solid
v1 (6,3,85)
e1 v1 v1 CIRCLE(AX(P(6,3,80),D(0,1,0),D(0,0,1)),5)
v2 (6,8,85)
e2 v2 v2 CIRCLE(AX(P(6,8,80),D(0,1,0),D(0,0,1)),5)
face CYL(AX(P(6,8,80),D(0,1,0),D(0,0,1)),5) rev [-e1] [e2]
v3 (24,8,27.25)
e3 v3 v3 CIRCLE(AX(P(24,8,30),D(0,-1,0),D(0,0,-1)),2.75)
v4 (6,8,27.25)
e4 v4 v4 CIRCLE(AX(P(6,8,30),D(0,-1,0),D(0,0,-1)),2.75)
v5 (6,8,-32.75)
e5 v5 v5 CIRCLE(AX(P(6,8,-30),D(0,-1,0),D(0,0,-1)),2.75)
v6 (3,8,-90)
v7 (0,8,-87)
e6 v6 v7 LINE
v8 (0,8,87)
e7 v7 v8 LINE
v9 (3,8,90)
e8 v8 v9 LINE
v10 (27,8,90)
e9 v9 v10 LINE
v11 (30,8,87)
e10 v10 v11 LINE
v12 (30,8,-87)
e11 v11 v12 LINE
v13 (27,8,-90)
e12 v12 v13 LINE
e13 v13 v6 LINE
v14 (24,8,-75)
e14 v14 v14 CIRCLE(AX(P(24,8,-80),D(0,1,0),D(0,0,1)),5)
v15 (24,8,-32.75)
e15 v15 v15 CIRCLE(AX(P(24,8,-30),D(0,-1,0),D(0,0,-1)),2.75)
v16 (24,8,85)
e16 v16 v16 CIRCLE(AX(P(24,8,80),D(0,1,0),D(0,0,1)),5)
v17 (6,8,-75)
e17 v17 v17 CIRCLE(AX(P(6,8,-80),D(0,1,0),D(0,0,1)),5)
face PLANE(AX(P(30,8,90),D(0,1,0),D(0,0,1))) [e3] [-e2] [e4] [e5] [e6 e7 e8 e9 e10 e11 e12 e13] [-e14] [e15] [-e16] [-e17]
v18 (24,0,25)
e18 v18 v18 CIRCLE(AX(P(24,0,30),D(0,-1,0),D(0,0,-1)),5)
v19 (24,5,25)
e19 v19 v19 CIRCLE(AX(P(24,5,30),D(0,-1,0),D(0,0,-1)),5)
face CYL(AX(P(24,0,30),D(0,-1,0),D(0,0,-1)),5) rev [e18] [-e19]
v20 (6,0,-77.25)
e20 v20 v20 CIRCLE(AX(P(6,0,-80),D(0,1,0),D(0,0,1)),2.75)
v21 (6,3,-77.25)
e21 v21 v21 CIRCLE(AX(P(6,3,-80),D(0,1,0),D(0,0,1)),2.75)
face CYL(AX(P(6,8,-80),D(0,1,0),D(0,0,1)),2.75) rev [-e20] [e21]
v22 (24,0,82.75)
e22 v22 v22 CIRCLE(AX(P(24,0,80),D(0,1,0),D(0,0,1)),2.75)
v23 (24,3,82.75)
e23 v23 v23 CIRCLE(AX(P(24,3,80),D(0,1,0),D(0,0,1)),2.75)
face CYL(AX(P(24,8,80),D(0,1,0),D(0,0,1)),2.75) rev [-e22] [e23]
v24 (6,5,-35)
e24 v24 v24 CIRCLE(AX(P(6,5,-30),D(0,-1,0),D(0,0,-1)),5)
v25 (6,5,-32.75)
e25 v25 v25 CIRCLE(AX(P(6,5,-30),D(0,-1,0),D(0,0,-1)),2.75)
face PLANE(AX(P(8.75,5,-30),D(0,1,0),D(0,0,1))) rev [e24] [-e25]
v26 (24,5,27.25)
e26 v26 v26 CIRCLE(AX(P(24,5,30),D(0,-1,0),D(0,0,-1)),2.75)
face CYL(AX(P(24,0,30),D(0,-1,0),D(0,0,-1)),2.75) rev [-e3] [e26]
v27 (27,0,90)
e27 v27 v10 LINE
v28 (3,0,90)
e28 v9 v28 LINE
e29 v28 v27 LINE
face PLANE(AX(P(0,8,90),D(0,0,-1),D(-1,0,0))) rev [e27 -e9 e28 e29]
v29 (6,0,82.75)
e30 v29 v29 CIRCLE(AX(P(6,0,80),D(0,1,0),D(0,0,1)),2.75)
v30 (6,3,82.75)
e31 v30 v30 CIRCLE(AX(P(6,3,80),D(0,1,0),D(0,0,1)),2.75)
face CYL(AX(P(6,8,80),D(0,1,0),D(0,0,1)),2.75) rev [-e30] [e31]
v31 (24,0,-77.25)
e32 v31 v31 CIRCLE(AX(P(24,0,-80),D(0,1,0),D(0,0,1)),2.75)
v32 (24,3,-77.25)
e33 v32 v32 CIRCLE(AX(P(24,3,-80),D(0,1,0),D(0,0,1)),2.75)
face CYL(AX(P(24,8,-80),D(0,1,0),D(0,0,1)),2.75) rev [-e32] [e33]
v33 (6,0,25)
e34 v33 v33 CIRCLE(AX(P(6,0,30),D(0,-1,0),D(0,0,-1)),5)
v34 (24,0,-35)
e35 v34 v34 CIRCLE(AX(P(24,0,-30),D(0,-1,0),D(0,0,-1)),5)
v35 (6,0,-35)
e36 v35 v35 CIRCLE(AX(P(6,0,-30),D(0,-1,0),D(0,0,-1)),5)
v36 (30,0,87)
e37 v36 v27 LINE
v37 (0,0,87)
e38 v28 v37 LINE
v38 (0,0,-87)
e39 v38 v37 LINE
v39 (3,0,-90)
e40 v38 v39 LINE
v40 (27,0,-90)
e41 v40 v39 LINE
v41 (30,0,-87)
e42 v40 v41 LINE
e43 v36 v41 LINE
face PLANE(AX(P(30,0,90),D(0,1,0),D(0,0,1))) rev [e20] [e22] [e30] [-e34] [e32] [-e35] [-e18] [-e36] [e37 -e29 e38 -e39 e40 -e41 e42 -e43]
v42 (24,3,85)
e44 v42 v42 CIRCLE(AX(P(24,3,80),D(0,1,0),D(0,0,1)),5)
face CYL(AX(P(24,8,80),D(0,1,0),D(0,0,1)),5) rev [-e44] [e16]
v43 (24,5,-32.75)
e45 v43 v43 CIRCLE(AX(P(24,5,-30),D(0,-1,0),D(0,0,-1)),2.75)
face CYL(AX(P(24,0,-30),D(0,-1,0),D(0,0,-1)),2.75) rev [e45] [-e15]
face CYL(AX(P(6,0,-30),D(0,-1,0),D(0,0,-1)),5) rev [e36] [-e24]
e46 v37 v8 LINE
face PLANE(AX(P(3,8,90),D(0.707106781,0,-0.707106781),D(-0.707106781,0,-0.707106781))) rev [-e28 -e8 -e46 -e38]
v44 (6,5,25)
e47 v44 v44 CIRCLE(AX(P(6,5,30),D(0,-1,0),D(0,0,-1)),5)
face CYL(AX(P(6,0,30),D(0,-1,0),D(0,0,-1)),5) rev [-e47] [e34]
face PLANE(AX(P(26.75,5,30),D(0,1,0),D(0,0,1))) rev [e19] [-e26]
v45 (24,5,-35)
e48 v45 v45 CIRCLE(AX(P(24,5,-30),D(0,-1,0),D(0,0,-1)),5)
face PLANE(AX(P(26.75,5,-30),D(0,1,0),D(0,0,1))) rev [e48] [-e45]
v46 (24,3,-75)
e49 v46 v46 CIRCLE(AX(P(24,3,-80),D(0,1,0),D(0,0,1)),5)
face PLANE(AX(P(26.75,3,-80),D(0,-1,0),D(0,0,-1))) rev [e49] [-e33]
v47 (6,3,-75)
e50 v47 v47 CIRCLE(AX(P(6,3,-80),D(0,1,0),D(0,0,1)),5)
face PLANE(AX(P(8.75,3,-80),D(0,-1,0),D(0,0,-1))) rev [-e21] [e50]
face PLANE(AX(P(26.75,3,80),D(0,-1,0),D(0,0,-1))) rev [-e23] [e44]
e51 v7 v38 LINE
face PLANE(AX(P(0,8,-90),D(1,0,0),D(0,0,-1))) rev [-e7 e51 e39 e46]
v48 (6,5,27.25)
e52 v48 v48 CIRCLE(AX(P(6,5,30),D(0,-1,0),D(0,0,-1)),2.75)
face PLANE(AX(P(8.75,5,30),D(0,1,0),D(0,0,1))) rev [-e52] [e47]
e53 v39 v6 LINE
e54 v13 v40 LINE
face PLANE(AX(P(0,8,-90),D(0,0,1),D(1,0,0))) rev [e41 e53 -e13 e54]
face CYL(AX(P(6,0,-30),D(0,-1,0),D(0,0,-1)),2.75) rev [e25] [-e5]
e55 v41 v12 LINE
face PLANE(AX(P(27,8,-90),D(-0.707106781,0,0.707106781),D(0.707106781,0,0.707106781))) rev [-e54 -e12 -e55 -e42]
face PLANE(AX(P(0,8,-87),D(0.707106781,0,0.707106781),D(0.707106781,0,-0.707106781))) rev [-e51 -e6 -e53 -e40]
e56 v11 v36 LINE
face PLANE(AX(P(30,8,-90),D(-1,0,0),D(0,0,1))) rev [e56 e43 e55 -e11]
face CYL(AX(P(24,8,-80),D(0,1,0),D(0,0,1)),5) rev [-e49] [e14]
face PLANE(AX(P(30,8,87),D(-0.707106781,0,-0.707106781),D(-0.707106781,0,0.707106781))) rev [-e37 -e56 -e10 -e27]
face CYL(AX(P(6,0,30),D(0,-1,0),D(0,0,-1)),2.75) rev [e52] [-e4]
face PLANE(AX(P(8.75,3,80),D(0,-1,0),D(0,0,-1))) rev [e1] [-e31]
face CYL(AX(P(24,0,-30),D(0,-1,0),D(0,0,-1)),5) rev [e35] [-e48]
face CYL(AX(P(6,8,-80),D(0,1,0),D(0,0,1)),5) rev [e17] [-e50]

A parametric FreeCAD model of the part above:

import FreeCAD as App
import Part
import Sketcher
Q = App.Units.Quantity


def edges_at(feature, points):
    """Names of the edges that pass closest to the given points."""
    edges = feature.Shape.Edges
    near = lambda p: min(range(len(edges)), key=lambda i: edges[i].distToShape(Part.Vertex(*p))[0])
    return sorted({f"Edge{near(p) + 1}" for p in points})


def add_polygon(sketch, points):
    """Adds a closed chain of lines whose ends are joined by coincident constraints."""
    first, n = sketch.GeometryCount, len(points)
    for a, b in zip(points, points[1:] + points[:1]):
        sketch.addGeometry(Part.LineSegment(App.Vector(*a, 0), App.Vector(*b, 0)), False)
    for i in range(n):
        sketch.addConstraint(Sketcher.Constraint("Coincident", first + i, 2, first + (i + 1) % n, 1))

doc = App.newDocument("Part")
params = doc.addObject("Spreadsheet::Sheet", "Params")
for row, (alias, value) in enumerate([
    ("sketch1_width", "30 mm"),
    ("sketch1_height", "180 mm"),
    ("pad1_length", "8 mm"),
    ("chamfer_size", "3 mm"),
    ("sketch2_diameter", "5.5 mm"),
    ("hole_diameter", "5.5 mm"),
    ("hole_cbore_diameter", "10 mm"),
    ("hole_cbore_depth", "5 mm"),
    ("sketch3_diameter", "5.5 mm"),
    ("hole2_diameter", "5.5 mm"),
    ("hole2_cbore_diameter", "10 mm"),
    ("hole2_cbore_depth", "5 mm"),
], start=1):
    params.set(f"A{row}", alias)
    params.set(f"B{row}", "=" + value)
    params.setAlias(f"B{row}", alias)

body = doc.addObject("PartDesign::Body", "Body")

# Sketch on XZ plane
sketch1 = body.newObject("Sketcher::SketchObject", "Sketch")
sketch1.AttachmentSupport = (doc.getObject("XZ_Plane"), [""])
sketch1.MapMode = "FlatFace"
add_polygon(sketch1, [(0, -90), (0, 90), (30, 90), (30, -90)])  # lines 0-3
sketch1.addConstraint([
    Sketcher.Constraint("Vertical", 0),
    Sketcher.Constraint("Horizontal", 1),
    Sketcher.Constraint("Vertical", 2),
    Sketcher.Constraint("Horizontal", 3),
    Sketcher.Constraint("Symmetric", 0, 2, 3, 2, -1, 1),
    Sketcher.Constraint("DistanceX", 1, 1, 1, 2, Q("30 mm")),
    Sketcher.Constraint("DistanceY", 0, 1, 0, 2, Q("180 mm")),
])
sketch1.setExpression("Constraints[9]", "Params.sketch1_width")
sketch1.setExpression("Constraints[10]", "Params.sketch1_height")
pad1 = body.newObject("PartDesign::Pad", "Pad")
pad1.Profile = sketch1
pad1.setExpression("Length", "Params.pad1_length")
pad1.Reversed = True
doc.recompute()

chamfer = body.newObject("PartDesign::Chamfer", "Chamfer")
chamfer.Base = (pad1, edges_at(pad1, [
    (30, 4, 90),
    (0, 4, 90),
    (0, 4, -90),
    (30, 4, -90),
]))
chamfer.setExpression("Size", "Params.chamfer_size")

# Sketch on XZ plane
sketch2 = body.newObject("Sketcher::SketchObject", "Sketch001")
sketch2.AttachmentSupport = (doc.getObject("XZ_Plane"), [""])
sketch2.MapMode = "FlatFace"
sketch2.AttachmentOffset = App.Placement(App.Vector(0, 0, -8), App.Rotation())
sketch2.addGeometry([
    Part.Circle(App.Vector(6, -80, 0), App.Vector(0, 0, 1), 2.75),
    Part.Circle(App.Vector(6, 80, 0), App.Vector(0, 0, 1), 2.75),
    Part.Circle(App.Vector(24, 80, 0), App.Vector(0, 0, 1), 2.75),
    Part.Circle(App.Vector(24, -80, 0), App.Vector(0, 0, 1), 2.75),
], False)
sketch2.addConstraint([
    Sketcher.Constraint("Equal", 0, 1),
    Sketcher.Constraint("Equal", 1, 2),
    Sketcher.Constraint("Equal", 2, 3),
    Sketcher.Constraint("Symmetric", 0, 3, 1, 3, -1),
    Sketcher.Constraint("Symmetric", 2, 3, 3, 3, -1),
    Sketcher.Constraint("Horizontal", 1, 3, 2, 3),
    Sketcher.Constraint("Diameter", 0, Q("5.5 mm")),
    Sketcher.Constraint("DistanceX", -1, 1, 0, 3, Q("6 mm")),
    Sketcher.Constraint("DistanceY", 0, 3, -1, 1, Q("80 mm")),
    Sketcher.Constraint("DistanceX", -1, 1, 2, 3, Q("24 mm")),
])
sketch2.setExpression("Constraints[6]", "Params.sketch2_diameter")
doc.recompute()
hole = body.newObject("PartDesign::Hole", "Hole")
hole.Profile = sketch2
hole.ThreadType = "None"
hole.setExpression("Diameter", "Params.hole_diameter")
hole.DepthType = "ThroughAll"
hole.HoleCutType = "Counterbore"
hole.setExpression("HoleCutDiameter", "Params.hole_cbore_diameter")
hole.setExpression("HoleCutDepth", "Params.hole_cbore_depth")
hole.Reversed = True

# Sketch on XZ plane
sketch3 = body.newObject("Sketcher::SketchObject", "Sketch002")
sketch3.AttachmentSupport = (doc.getObject("XZ_Plane"), [""])
sketch3.MapMode = "FlatFace"
sketch3.addGeometry([
    Part.Circle(App.Vector(6, 30, 0), App.Vector(0, 0, 1), 2.75),
    Part.Circle(App.Vector(6, -30, 0), App.Vector(0, 0, 1), 2.75),
    Part.Circle(App.Vector(24, -30, 0), App.Vector(0, 0, 1), 2.75),
    Part.Circle(App.Vector(24, 30, 0), App.Vector(0, 0, 1), 2.75),
], False)
sketch3.addConstraint([
    Sketcher.Constraint("Equal", 0, 1),
    Sketcher.Constraint("Equal", 1, 2),
    Sketcher.Constraint("Equal", 2, 3),
    Sketcher.Constraint("Symmetric", 0, 3, 1, 3, -1),
    Sketcher.Constraint("Symmetric", 2, 3, 3, 3, -1),
    Sketcher.Constraint("Horizontal", 1, 3, 2, 3),
    Sketcher.Constraint("Diameter", 0, Q("5.5 mm")),
    Sketcher.Constraint("DistanceX", -1, 1, 0, 3, Q("6 mm")),
    Sketcher.Constraint("DistanceY", -1, 1, 0, 3, Q("30 mm")),
    Sketcher.Constraint("DistanceX", -1, 1, 2, 3, Q("24 mm")),
])
sketch3.setExpression("Constraints[6]", "Params.sketch3_diameter")
doc.recompute()
hole2 = body.newObject("PartDesign::Hole", "Hole001")
hole2.Profile = sketch3
hole2.ThreadType = "None"
hole2.setExpression("Diameter", "Params.hole2_diameter")
hole2.DepthType = "ThroughAll"
hole2.HoleCutType = "Counterbore"
hole2.setExpression("HoleCutDiameter", "Params.hole2_cbore_diameter")
hole2.setExpression("HoleCutDepth", "Params.hole2_cbore_depth")

doc.recompute()
